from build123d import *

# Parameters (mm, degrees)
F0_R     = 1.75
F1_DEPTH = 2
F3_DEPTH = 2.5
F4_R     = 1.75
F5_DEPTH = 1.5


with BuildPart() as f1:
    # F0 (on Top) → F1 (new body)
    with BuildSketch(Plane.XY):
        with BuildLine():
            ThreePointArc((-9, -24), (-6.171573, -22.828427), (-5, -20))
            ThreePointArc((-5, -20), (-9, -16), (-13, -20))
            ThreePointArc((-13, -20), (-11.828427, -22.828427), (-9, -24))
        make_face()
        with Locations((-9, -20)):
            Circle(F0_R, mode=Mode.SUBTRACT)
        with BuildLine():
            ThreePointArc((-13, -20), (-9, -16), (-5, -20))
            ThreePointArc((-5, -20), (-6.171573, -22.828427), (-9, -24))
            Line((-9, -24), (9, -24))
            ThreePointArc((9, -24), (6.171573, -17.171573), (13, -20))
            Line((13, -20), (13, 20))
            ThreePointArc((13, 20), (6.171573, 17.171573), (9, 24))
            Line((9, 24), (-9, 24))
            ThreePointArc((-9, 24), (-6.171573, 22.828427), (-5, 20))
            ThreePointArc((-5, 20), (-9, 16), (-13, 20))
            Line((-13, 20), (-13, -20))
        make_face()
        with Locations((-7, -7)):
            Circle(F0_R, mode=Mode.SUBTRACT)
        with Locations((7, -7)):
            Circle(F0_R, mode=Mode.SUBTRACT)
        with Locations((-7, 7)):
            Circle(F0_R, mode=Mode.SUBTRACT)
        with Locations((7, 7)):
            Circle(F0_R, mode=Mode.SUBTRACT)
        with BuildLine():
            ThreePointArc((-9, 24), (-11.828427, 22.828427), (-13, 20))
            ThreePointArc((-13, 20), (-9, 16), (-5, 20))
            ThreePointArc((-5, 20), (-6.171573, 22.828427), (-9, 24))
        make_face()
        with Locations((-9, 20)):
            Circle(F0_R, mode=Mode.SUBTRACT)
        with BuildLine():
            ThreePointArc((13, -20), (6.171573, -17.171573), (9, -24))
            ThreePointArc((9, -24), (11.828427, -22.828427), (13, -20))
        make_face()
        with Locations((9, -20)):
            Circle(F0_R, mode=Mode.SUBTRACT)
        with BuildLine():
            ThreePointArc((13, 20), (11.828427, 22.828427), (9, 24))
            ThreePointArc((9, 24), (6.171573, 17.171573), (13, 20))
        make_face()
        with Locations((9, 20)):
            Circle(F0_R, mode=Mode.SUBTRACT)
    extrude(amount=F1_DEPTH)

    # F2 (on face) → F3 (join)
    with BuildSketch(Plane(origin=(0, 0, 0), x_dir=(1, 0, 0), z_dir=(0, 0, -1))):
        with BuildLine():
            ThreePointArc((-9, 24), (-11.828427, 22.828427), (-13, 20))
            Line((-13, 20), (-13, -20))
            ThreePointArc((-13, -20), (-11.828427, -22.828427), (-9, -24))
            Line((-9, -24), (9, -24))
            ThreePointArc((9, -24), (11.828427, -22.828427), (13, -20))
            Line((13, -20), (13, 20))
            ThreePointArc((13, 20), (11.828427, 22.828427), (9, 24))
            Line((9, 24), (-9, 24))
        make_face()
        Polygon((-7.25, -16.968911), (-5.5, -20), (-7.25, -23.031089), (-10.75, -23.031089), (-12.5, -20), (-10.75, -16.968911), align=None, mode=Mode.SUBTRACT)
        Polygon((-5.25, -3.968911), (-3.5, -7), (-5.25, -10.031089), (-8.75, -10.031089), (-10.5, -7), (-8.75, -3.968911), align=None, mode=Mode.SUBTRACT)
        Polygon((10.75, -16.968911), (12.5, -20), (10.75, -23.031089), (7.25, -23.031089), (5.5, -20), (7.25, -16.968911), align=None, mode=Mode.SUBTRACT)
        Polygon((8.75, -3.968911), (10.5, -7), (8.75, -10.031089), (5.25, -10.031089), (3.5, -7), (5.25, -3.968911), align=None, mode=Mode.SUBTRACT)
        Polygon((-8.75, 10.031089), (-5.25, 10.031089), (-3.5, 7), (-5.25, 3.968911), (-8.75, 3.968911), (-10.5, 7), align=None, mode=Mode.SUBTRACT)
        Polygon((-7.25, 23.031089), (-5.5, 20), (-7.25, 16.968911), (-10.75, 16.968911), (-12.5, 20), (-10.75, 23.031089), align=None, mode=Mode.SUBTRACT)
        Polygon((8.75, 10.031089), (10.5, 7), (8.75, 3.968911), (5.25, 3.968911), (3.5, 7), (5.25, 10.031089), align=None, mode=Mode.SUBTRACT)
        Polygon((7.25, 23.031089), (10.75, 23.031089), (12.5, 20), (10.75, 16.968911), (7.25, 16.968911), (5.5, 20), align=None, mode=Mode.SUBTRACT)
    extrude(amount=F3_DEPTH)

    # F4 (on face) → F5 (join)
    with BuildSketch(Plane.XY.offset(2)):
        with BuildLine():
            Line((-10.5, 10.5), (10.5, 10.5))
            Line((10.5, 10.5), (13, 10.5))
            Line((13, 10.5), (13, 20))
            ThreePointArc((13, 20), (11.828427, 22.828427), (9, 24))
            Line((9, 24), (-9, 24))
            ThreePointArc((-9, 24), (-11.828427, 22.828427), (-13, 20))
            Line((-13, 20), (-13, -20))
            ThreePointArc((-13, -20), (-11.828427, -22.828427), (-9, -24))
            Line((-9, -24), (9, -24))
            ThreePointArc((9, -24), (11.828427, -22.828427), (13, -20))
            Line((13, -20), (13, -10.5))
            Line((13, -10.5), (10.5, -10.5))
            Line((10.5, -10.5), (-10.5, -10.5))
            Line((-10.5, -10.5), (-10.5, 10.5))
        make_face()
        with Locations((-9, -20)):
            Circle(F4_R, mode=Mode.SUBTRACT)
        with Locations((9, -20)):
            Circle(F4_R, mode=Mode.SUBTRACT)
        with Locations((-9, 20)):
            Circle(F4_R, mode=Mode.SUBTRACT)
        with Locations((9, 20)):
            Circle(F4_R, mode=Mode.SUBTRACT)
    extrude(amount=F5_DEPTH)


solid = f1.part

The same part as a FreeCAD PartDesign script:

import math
import FreeCAD as App
import Part
import Sketcher
from FreeCAD import Vector
Q = App.Units.Quantity


def add_polygon(sketch, points):
    """Adds a closed chain of lines whose ends are joined by coincident constraints."""
    first, n = sketch.GeometryCount, len(points)
    for a, b in zip(points, points[1:] + points[:1]):
        sketch.addGeometry(Part.LineSegment(App.Vector(*a, 0), App.Vector(*b, 0)), False)
    for i in range(n):
        sketch.addConstraint(Sketcher.Constraint("Coincident", first + i, 2, first + (i + 1) % n, 1))

doc = App.newDocument("Part")
body = doc.addObject("PartDesign::Body", "Body")

sketch1 = doc.addObject("Sketcher::SketchObject", "Sketch")
body.addObject(sketch1)
sketch1.AttachmentSupport = (doc.XY_Plane, [""])
sketch1.MapMode = "FlatFace"
sketch1.addGeometry([
    Part.ArcOfCircle(Part.Circle(Vector(-9, -20, 0), Vector(0, 0, 1), 4), math.radians(-180), math.radians(-90)),
    Part.LineSegment(Vector(-9, -24, 0), Vector(9, -24, 0)),
    Part.ArcOfCircle(Part.Circle(Vector(9, -20, 0), Vector(0, 0, 1), 4), math.radians(-90), math.radians(0)),
    Part.LineSegment(Vector(13, -20, 0), Vector(13, 20, 0)),
    Part.ArcOfCircle(Part.Circle(Vector(9, 20, 0), Vector(0, 0, 1), 4), math.radians(0), math.radians(90)),
    Part.LineSegment(Vector(9, 24, 0), Vector(-9, 24, 0)),
    Part.ArcOfCircle(Part.Circle(Vector(-9, 20, 0), Vector(0, 0, 1), 4), math.radians(90), math.radians(180)),
    Part.LineSegment(Vector(-13, 20, 0), Vector(-13, -20, 0)),
    Part.Circle(Vector(-9, -20, 0), Vector(0, 0, 1), 1.8),
    Part.Circle(Vector(-7, -7, 0), Vector(0, 0, 1), 1.8),
    Part.Circle(Vector(9, -20, 0), Vector(0, 0, 1), 1.8),
    Part.Circle(Vector(7, -7, 0), Vector(0, 0, 1), 1.8),
    Part.Circle(Vector(-7, 7, 0), Vector(0, 0, 1), 1.8),
    Part.Circle(Vector(-9, 20, 0), Vector(0, 0, 1), 1.8),
    Part.Circle(Vector(7, 7, 0), Vector(0, 0, 1), 1.8),
    Part.Circle(Vector(9, 20, 0), Vector(0, 0, 1), 1.8),
], False)
sketch1.addConstraint([
    Sketcher.Constraint("Tangent", 0, 2, 1, 1),
    Sketcher.Constraint("Tangent", 1, 2, 2, 1),
    Sketcher.Constraint("Tangent", 2, 2, 3, 1),
    Sketcher.Constraint("Tangent", 3, 2, 4, 1),
    Sketcher.Constraint("Tangent", 4, 2, 5, 1),
    Sketcher.Constraint("Tangent", 5, 2, 6, 1),
    Sketcher.Constraint("Tangent", 6, 2, 7, 1),
    Sketcher.Constraint("Tangent", 7, 2, 0, 1),
    Sketcher.Constraint("Horizontal", 1),
    Sketcher.Constraint("Vertical", 3),
    Sketcher.Constraint("Horizontal", 5),
    Sketcher.Constraint("Vertical", 7),
    Sketcher.Constraint("Coincident", 8, 3, 0, 3),
    Sketcher.Constraint("Coincident", 10, 3, 2, 3),
    Sketcher.Constraint("Coincident", 13, 3, 6, 3),
    Sketcher.Constraint("Coincident", 15, 3, 4, 3),
    Sketcher.Constraint("Equal", 0, 2),
    Sketcher.Constraint("Equal", 2, 4),
    Sketcher.Constraint("Equal", 4, 6),
    Sketcher.Constraint("Equal", 8, 9),
    Sketcher.Constraint("Equal", 9, 10),
    Sketcher.Constraint("Equal", 10, 11),
    Sketcher.Constraint("Equal", 11, 12),
    Sketcher.Constraint("Equal", 12, 13),
    Sketcher.Constraint("Equal", 13, 14),
    Sketcher.Constraint("Equal", 14, 15),
    Sketcher.Constraint("Symmetric", 0, 3, 4, 3, -1, 1),
    Sketcher.Constraint("Symmetric", 11, 3, 12, 3, -1, 1),
    Sketcher.Constraint("Symmetric", 9, 3, 14, 3, -1, 1),
    Sketcher.Constraint("Symmetric", 9, 3, 11, 3, -2),
    Sketcher.Constraint("Radius", 0, Q("4 mm")),
    Sketcher.Constraint("Diameter", 8, Q("3.5 mm")),
    Sketcher.Constraint("DistanceX", 1, 1, 1, 2, Q("18 mm")),
    Sketcher.Constraint("DistanceY", 3, 1, 3, 2, Q("40 mm")),
    Sketcher.Constraint("DistanceX", 9, 3, -1, 1, Q("7 mm")),
    Sketcher.Constraint("DistanceY", 9, 3, -1, 1, Q("7 mm")),
])
pad1 = doc.addObject("PartDesign::Pad", "Pad")
body.addObject(pad1)
pad1.Profile = sketch1
pad1.Length = 2

sketch2 = doc.addObject("Sketcher::SketchObject", "Sketch001")
body.addObject(sketch2)
sketch2.AttachmentSupport = (doc.XY_Plane, [""])
sketch2.MapMode = "FlatFace"
sketch2.addGeometry(Part.ArcOfCircle(Part.Circle(Vector(-9, -20, 0), Vector(0, 0, 1), 4), math.radians(-180), math.radians(-90)), False)
sketch2.addGeometry(Part.LineSegment(Vector(-13, -20, 0), Vector(-13, 20, 0)), False)
sketch2.addGeometry(Part.ArcOfCircle(Part.Circle(Vector(-9, 20, 0), Vector(0, 0, 1), 4), math.radians(90), math.radians(180)), False)
sketch2.addGeometry(Part.LineSegment(Vector(-9, 24, 0), Vector(9, 24, 0)), False)
sketch2.addGeometry(Part.ArcOfCircle(Part.Circle(Vector(9, 20, 0), Vector(0, 0, 1), 4), math.radians(0), math.radians(90)), False)
sketch2.addGeometry(Part.LineSegment(Vector(13, 20, 0), Vector(13, -20, 0)), False)
sketch2.addGeometry(Part.ArcOfCircle(Part.Circle(Vector(9, -20, 0), Vector(0, 0, 1), 4), math.radians(-90), math.radians(0)), False)
sketch2.addGeometry(Part.LineSegment(Vector(9, -24, 0), Vector(-9, -24, 0)), False)
add_polygon(sketch2, [(-10.8, 17), (-7.2, 17), (-5.5, 20), (-7.2, 23), (-10.8, 23), (-12.5, 20)])
add_polygon(sketch2, [(-8.8, 4), (-5.2, 4), (-3.5, 7), (-5.2, 10), (-8.8, 10), (-10.5, 7)])
add_polygon(sketch2, [(7.2, 17), (10.8, 17), (12.5, 20), (10.8, 23), (7.2, 23), (5.5, 20)])
add_polygon(sketch2, [(5.2, 4), (8.8, 4), (10.5, 7), (8.8, 10), (5.2, 10), (3.5, 7)])
add_polygon(sketch2, [(-10.5, -7), (-8.8, -10), (-5.2, -10), (-3.5, -7), (-5.2, -4), (-8.8, -4)])
add_polygon(sketch2, [(-10.8, -23), (-7.2, -23), (-5.5, -20), (-7.2, -17), (-10.8, -17), (-12.5, -20)])
add_polygon(sketch2, [(5.2, -10), (8.8, -10), (10.5, -7), (8.8, -4), (5.2, -4), (3.5, -7)])
add_polygon(sketch2, [(5.5, -20), (7.2, -23), (10.8, -23), (12.5, -20), (10.8, -17), (7.2, -17)])
sketch2.addConstraint([
    Sketcher.Constraint("Tangent", 0, 1, 1, 1),
    Sketcher.Constraint("Tangent", 1, 2, 2, 2),
    Sketcher.Constraint("Tangent", 2, 1, 3, 1),
    Sketcher.Constraint("Tangent", 3, 2, 4, 2),
    Sketcher.Constraint("Tangent", 4, 1, 5, 1),
    Sketcher.Constraint("Tangent", 5, 2, 6, 2),
    Sketcher.Constraint("Tangent", 6, 1, 7, 1),
    Sketcher.Constraint("Tangent", 7, 2, 0, 2),
    Sketcher.Constraint("Vertical", 1),
    Sketcher.Constraint("Horizontal", 3),
    Sketcher.Constraint("Vertical", 5),
    Sketcher.Constraint("Horizontal", 7),
    Sketcher.Constraint("Horizontal", 8),
    Sketcher.Constraint("Horizontal", 11),
    Sketcher.Constraint("Horizontal", 14),
    Sketcher.Constraint("Horizontal", 17),
    Sketcher.Constraint("Horizontal", 20),
    Sketcher.Constraint("Horizontal", 23),
    Sketcher.Constraint("Horizontal", 26),
    Sketcher.Constraint("Horizontal", 29),
    Sketcher.Constraint("Horizontal", 33),
    Sketcher.Constraint("Horizontal", 36),
    Sketcher.Constraint("Horizontal", 38),
    Sketcher.Constraint("Horizontal", 41),
    Sketcher.Constraint("Horizontal", 44),
    Sketcher.Constraint("Horizontal", 47),
    Sketcher.Constraint("Horizontal", 51),
    Sketcher.Constraint("Horizontal", 54),
    Sketcher.Constraint("Equal", 0, 2),
    Sketcher.Constraint("Equal", 2, 4),
    Sketcher.Constraint("Equal", 4, 6),
    Sketcher.Constraint("Symmetric", 0, 3, 4, 3, -1, 1),
    Sketcher.Constraint("Symmetric", 28, 2, 32, 2, -1, 1),
    Sketcher.Constraint("Symmetric", 30, 2, 34, 2, -1, 1),
    Sketcher.Constraint("Symmetric", 31, 2, 35, 2, -1, 1),
    Sketcher.Constraint("Symmetric", 27, 2, 37, 2, -1, 1),
    Sketcher.Constraint("Symmetric", 23, 2, 38, 2, -1, 1),
    Sketcher.Constraint("Symmetric", 24, 2, 39, 2, -1, 1),
    Sketcher.Constraint("Symmetric", 25, 2, 40, 2, -1, 1),
    Sketcher.Constraint("Symmetric", 21, 2, 42, 2, -1, 1),
    Sketcher.Constraint("Symmetric", 17, 2, 44, 2, -1, 1),
    Sketcher.Constraint("Symmetric", 18, 2, 45, 2, -1, 1),
    Sketcher.Constraint("Symmetric", 19, 2, 46, 2, -1, 1),
    Sketcher.Constraint("Symmetric", 15, 2, 48, 2, -1, 1),
    Sketcher.Constraint("Symmetric", 10, 2, 50, 2, -1, 1),
    Sketcher.Constraint("Symmetric", 12, 2, 52, 2, -1, 1),
    Sketcher.Constraint("Symmetric", 13, 2, 53, 2, -1, 1),
    Sketcher.Constraint("Symmetric", 9, 2, 55, 2, -1, 1),
    Sketcher.Constraint("Symmetric", 13, 2, 20, 2, -2),
    Sketcher.Constraint("Symmetric", 12, 2, 21, 2, -2),
    Sketcher.Constraint("Symmetric", 11, 2, 22, 2, -2),
    Sketcher.Constraint("Symmetric", 9, 2, 24, 2, -2),
    Sketcher.Constraint("Symmetric", 19, 2, 26, 2, -2),
    Sketcher.Constraint("Symmetric", 18, 2, 27, 2, -2),
    Sketcher.Constraint("Symmetric", 17, 2, 28, 2, -2),
    Sketcher.Constraint("Symmetric", 15, 2, 30, 2, -2),
    Sketcher.Constraint("Parallel", 9, 12),
    Sketcher.Constraint("Parallel", 10, 13),
    Sketcher.Constraint("Parallel", 12, 15),
    Sketcher.Constraint("Parallel", 13, 16),
    Sketcher.Constraint("Parallel", 15, 18),
    Sketcher.Constraint("Parallel", 16, 19),
    Sketcher.Constraint("Parallel", 18, 21),
    Sketcher.Constraint("Parallel", 21, 24),
    Sketcher.Constraint("Parallel", 22, 25),
    Sketcher.Constraint("Parallel", 27, 30),
    Sketcher.Constraint("Parallel", 28, 31),
    Sketcher.Constraint("Parallel", 30, 34),
    Sketcher.Constraint("Parallel", 34, 37),
    Sketcher.Constraint("Parallel", 39, 42),
    Sketcher.Constraint("Parallel", 40, 43),
    Sketcher.Constraint("Parallel", 45, 48),
    Sketcher.Constraint("Parallel", 46, 49),
    Sketcher.Constraint("Parallel", 48, 52),
    Sketcher.Constraint("Parallel", 52, 55),
    Sketcher.Constraint("Horizontal", 4, 1, 9, 2),
    Sketcher.Constraint("Horizontal", 9, 2, 12, 2),
    Sketcher.Constraint("Horizontal", 15, 2, 18, 2),
    Sketcher.Constraint("Vertical", 8, 2, 10, 2),
    Sketcher.Constraint("Vertical", 14, 2, 16, 2),
    Sketcher.Constraint("Equal", 11, 14),
    Sketcher.Constraint("Equal", 13, 15),
    Sketcher.Constraint("Radius", 0, Q("4 mm")),
    Sketcher.Constraint("DistanceX", 3, 1, 3, 2, Q("18 mm")),
    Sketcher.Constraint("DistanceY", 1, 1, 1, 2, Q("40 mm")),
    Sketcher.Constraint("Angle", 9, Q("60.000001 deg")),
    Sketcher.Constraint("DistanceX", 8, 1, 8, 2, Q("3.5 mm")),
    Sketcher.Constraint("DistanceY", -1, 1, 15, 2, Q("7 mm")),
    Sketcher.Constraint("DistanceX", 8, 2, 14, 2, Q("2 mm")),
    Sketcher.Constraint("DistanceX", 18, 2, 15, 2, Q("7 mm")),
    Sketcher.Constraint("DistanceX", 9, 2, 21, 2, Q("18 mm")),
])
pad2 = doc.addObject("PartDesign::Pad", "Pad001")
body.addObject(pad2)
pad2.Profile = sketch2
pad2.Length = 2.5
pad2.Reversed = True

sketch3 = doc.addObject("Sketcher::SketchObject", "Sketch002")
body.addObject(sketch3)
sketch3.AttachmentSupport = (doc.XY_Plane, [""])
sketch3.MapMode = "FlatFace"
sketch3.AttachmentOffset = App.Placement(Vector(0, 0, 2), App.Rotation())
sketch3.addGeometry([
    Part.LineSegment(Vector(-10.5, 10.5, 0), Vector(13, 10.5, 0)),
    Part.LineSegment(Vector(13, 10.5, 0), Vector(13, 20, 0)),
    Part.ArcOfCircle(Part.Circle(Vector(9, 20, 0), Vector(0, 0, 1), 4), math.radians(0), math.radians(90)),
    Part.LineSegment(Vector(9, 24, 0), Vector(-9, 24, 0)),
    Part.ArcOfCircle(Part.Circle(Vector(-9, 20, 0), Vector(0, 0, 1), 4), math.radians(90), math.radians(180)),
    Part.LineSegment(Vector(-13, 20, 0), Vector(-13, -20, 0)),
    Part.ArcOfCircle(Part.Circle(Vector(-9, -20, 0), Vector(0, 0, 1), 4), math.radians(-180), math.radians(-90)),
    Part.LineSegment(Vector(-9, -24, 0), Vector(9, -24, 0)),
    Part.ArcOfCircle(Part.Circle(Vector(9, -20, 0), Vector(0, 0, 1), 4), math.radians(-90), math.radians(0)),
    Part.LineSegment(Vector(13, -20, 0), Vector(13, -10.5, 0)),
    Part.LineSegment(Vector(13, -10.5, 0), Vector(-10.5, -10.5, 0)),
    Part.LineSegment(Vector(-10.5, -10.5, 0), Vector(-10.5, 10.5, 0)),
    Part.Circle(Vector(-9, -20, 0), Vector(0, 0, 1), 1.8),
    Part.Circle(Vector(9, -20, 0), Vector(0, 0, 1), 1.8),
    Part.Circle(Vector(-9, 20, 0), Vector(0, 0, 1), 1.8),
    Part.Circle(Vector(9, 20, 0), Vector(0, 0, 1), 1.8),
], False)
sketch3.addConstraint([
    Sketcher.Constraint("Coincident", 0, 2, 1, 1),
    Sketcher.Constraint("Tangent", 1, 2, 2, 1),
    Sketcher.Constraint("Tangent", 2, 2, 3, 1),
    Sketcher.Constraint("Tangent", 3, 2, 4, 1),
    Sketcher.Constraint("Tangent", 4, 2, 5, 1),
    Sketcher.Constraint("Tangent", 5, 2, 6, 1),
    Sketcher.Constraint("Tangent", 6, 2, 7, 1),
    Sketcher.Constraint("Tangent", 7, 2, 8, 1),
    Sketcher.Constraint("Tangent", 8, 2, 9, 1),
    Sketcher.Constraint("Coincident", 9, 2, 10, 1),
    Sketcher.Constraint("Coincident", 10, 2, 11, 1),
    Sketcher.Constraint("Coincident", 11, 2, 0, 1),
    Sketcher.Constraint("Horizontal", 0),
    Sketcher.Constraint("Vertical", 1),
    Sketcher.Constraint("Horizontal", 3),
    Sketcher.Constraint("Vertical", 5),
    Sketcher.Constraint("Horizontal", 7),
    Sketcher.Constraint("Vertical", 9),
    Sketcher.Constraint("Horizontal", 10),
    Sketcher.Constraint("Vertical", 11),
    Sketcher.Constraint("Coincident", 12, 3, 6, 3),
    Sketcher.Constraint("Coincident", 13, 3, 8, 3),
    Sketcher.Constraint("Coincident", 14, 3, 4, 3),
    Sketcher.Constraint("Coincident", 15, 3, 2, 3),
    Sketcher.Constraint("Equal", 2, 4),
    Sketcher.Constraint("Equal", 4, 6),
    Sketcher.Constraint("Equal", 6, 8),
    Sketcher.Constraint("Equal", 12, 13),
    Sketcher.Constraint("Equal", 13, 14),
    Sketcher.Constraint("Equal", 14, 15),
    Sketcher.Constraint("Symmetric", 2, 3, 6, 3, -1, 1),
    Sketcher.Constraint("Symmetric", 0, 2, 9, 2, -1),
    Sketcher.Constraint("Radius", 2, Q("4 mm")),
    Sketcher.Constraint("Diameter", 12, Q("3.5 mm")),
    Sketcher.Constraint("DistanceX", 3, 2, 3, 1, Q("18 mm")),
    Sketcher.Constraint("DistanceY", 5, 2, 5, 1, Q("40 mm")),
    Sketcher.Constraint("DistanceY", 11, 1, 11, 2, Q("21 mm")),
    Sketcher.Constraint("DistanceX", 0, 1, 0, 2, Q("23.5 mm")),
])
pad3 = doc.addObject("PartDesign::Pad", "Pad002")
body.addObject(pad3)
pad3.Profile = sketch3
pad3.Length = 1.5

doc.recompute()
